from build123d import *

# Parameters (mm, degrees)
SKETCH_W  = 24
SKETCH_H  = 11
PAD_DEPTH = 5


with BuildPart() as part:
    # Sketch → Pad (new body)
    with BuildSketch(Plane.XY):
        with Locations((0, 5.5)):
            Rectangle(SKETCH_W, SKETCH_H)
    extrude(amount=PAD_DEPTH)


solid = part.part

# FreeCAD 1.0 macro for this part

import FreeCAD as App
import Part
import Sketcher
Q = App.Units.Quantity

doc = App.newDocument("Part")
body = doc.addObject("PartDesign::Body", "Body")

sketch1 = body.newObject("Sketcher::SketchObject", "Sketch")
sketch1.AttachmentSupport = (doc.getObject("XY_Plane"), [""])
sketch1.MapMode = "FlatFace"
sketch1.addGeometry(Part.LineSegment(App.Vector(-12, 11, 0), App.Vector(-12, 0, 0)), False)
sketch1.addGeometry(Part.LineSegment(App.Vector(-12, 0, 0), App.Vector(12, 0, 0)), False)
sketch1.addGeometry(Part.LineSegment(App.Vector(12, 0, 0), App.Vector(12, 11, 0)), False)
sketch1.addGeometry(Part.LineSegment(App.Vector(12, 11, 0), App.Vector(-12, 11, 0)), False)
sketch1.addConstraint(Sketcher.Constraint("Coincident", 0, 2, 1, 1))
sketch1.addConstraint(Sketcher.Constraint("Coincident", 1, 2, 2, 1))
sketch1.addConstraint(Sketcher.Constraint("Coincident", 2, 2, 3, 1))
sketch1.addConstraint(Sketcher.Constraint("Coincident", 3, 2, 0, 1))
sketch1.addConstraint(Sketcher.Constraint("Vertical", 0))
sketch1.addConstraint(Sketcher.Constraint("Horizontal", 1))
sketch1.addConstraint(Sketcher.Constraint("Vertical", 2))
sketch1.addConstraint(Sketcher.Constraint("Horizontal", 3))
sketch1.addConstraint(Sketcher.Constraint("Symmetric", 0, 2, 1, 2, -1, 1))
sketch1.addConstraint(Sketcher.Constraint("DistanceX", 1, 1, 1, 2, Q("24 mm")))
sketch1.addConstraint(Sketcher.Constraint("DistanceY", 0, 2, 0, 1, Q("11 mm")))
pad1 = body.newObject("PartDesign::Pad", "Pad")
pad1.Profile = sketch1
pad1.Length = 5

doc.recompute()
